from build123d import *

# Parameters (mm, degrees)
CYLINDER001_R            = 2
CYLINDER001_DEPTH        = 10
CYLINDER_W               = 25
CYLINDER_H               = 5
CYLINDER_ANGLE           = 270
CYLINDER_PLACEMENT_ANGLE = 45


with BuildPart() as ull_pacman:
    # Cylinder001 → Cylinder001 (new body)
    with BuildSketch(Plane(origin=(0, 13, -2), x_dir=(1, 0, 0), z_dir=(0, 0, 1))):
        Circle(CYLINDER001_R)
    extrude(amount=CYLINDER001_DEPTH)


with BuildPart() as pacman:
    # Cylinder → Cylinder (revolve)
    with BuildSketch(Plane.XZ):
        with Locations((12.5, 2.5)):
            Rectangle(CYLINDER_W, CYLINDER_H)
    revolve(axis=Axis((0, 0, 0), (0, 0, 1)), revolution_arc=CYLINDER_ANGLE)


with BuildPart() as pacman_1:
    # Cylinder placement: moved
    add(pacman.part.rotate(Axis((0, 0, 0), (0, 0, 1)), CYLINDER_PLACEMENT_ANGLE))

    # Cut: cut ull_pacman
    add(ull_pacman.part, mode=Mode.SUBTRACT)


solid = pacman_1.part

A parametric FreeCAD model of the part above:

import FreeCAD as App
import Part
import Sketcher
Q = App.Units.Quantity


def add_polygon(sketch, points):
    """Adds a closed chain of lines whose ends are joined by coincident constraints."""
    first, n = sketch.GeometryCount, len(points)
    for a, b in zip(points, points[1:] + points[:1]):
        sketch.addGeometry(Part.LineSegment(App.Vector(*a, 0), App.Vector(*b, 0)), False)
    for i in range(n):
        sketch.addConstraint(Sketcher.Constraint("Coincident", first + i, 2, first + (i + 1) % n, 1))

doc = App.newDocument("Part")
params = doc.addObject("Spreadsheet::Sheet", "Params")
for row, (alias, value) in enumerate([
    ("sketch1_diameter", "4 mm"),
    ("pad1_length", "10 mm"),
    ("sketch2_width", "25 mm"),
    ("sketch2_height", "5 mm"),
    ("revolution_angle", "270 deg"),
], start=1):
    params.set(f"A{row}", alias)
    params.set(f"B{row}", "=" + value)
    params.setAlias(f"B{row}", alias)

body = doc.addObject("PartDesign::Body", "Body")

# Sketch on XY plane
sketch1 = body.newObject("Sketcher::SketchObject", "Sketch")
sketch1.AttachmentSupport = (doc.getObject("XY_Plane"), [""])
sketch1.MapMode = "FlatFace"
sketch1.AttachmentOffset = App.Placement(App.Vector(0, 0, -2), App.Rotation())
sketch1.addGeometry(Part.Circle(App.Vector(0, 13, 0), App.Vector(0, 0, 1), 2), False)
sketch1.addConstraint([
    Sketcher.Constraint("PointOnObject", 0, 3, -2),
    Sketcher.Constraint("Diameter", 0, Q("4 mm")),
    Sketcher.Constraint("DistanceY", -1, 1, 0, 3, Q("13 mm")),
])
sketch1.setExpression("Constraints[1]", "Params.sketch1_diameter")
pad1 = body.newObject("PartDesign::Pad", "Pad")
pad1.Profile = sketch1
pad1.setExpression("Length", "Params.pad1_length")
body2 = doc.addObject("PartDesign::Body", "Body001")

# Sketch on XZ plane
sketch2 = body2.newObject("Sketcher::SketchObject", "Sketch001")
sketch2.AttachmentSupport = (doc.getObject("XZ_Plane001"), [""])
sketch2.MapMode = "FlatFace"
add_polygon(sketch2, [(0, 5), (0, 0), (25, 0), (25, 5)])  # lines 0-3
sketch2.addConstraint([
    Sketcher.Constraint("Vertical", 0),
    Sketcher.Constraint("Horizontal", 1),
    Sketcher.Constraint("Vertical", 2),
    Sketcher.Constraint("Horizontal", 3),
    Sketcher.Constraint("Coincident", 0, 2, -1, 1),
    Sketcher.Constraint("DistanceX", 1, 1, 1, 2, Q("25 mm")),
    Sketcher.Constraint("DistanceY", 0, 2, 0, 1, Q("5 mm")),
])
sketch2.setExpression("Constraints[9]", "Params.sketch2_width")
sketch2.setExpression("Constraints[10]", "Params.sketch2_height")
revolution = body2.newObject("PartDesign::Revolution", "Revolution")
revolution.Profile = sketch2
revolution.ReferenceAxis = (sketch2, ["V_Axis"])
revolution.setExpression("Angle", "Params.revolution_angle")
body3 = doc.addObject("PartDesign::Body", "Body002")
doc.recompute()

body2.Placement = App.Placement(App.Vector(0, 0, 0), App.Rotation(App.Vector(0, 0, 1), 45))
boolean = body3.newObject("PartDesign::Boolean", "Boolean")
boolean.Type = "Fuse"
boolean.addObjects([body2])
doc.recompute()

boolean2 = body3.newObject("PartDesign::Boolean", "Boolean001")
boolean2.Type = "Cut"
boolean2.addObjects([body])

doc.recompute()
